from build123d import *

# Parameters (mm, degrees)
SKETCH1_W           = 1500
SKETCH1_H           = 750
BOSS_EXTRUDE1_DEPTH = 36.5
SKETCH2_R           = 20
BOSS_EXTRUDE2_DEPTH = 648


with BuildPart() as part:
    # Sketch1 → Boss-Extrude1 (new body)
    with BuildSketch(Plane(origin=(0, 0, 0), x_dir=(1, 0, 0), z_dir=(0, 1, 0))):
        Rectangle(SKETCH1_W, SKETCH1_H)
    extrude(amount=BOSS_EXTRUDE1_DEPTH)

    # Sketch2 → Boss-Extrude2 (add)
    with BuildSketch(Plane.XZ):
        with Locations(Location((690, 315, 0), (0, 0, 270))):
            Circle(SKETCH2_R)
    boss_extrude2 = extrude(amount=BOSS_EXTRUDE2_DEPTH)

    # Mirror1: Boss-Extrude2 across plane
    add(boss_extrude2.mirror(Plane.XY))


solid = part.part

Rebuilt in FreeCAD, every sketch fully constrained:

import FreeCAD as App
import Part
import Sketcher


def add_polygon(sketch, points):
    """Adds a closed chain of lines whose ends are joined by coincident constraints."""
    first, n = sketch.GeometryCount, len(points)
    for a, b in zip(points, points[1:] + points[:1]):
        sketch.addGeometry(Part.LineSegment(App.Vector(*a, 0), App.Vector(*b, 0)), False)
    for i in range(n):
        sketch.addConstraint(Sketcher.Constraint("Coincident", first + i, 2, first + (i + 1) % n, 1))

doc = App.newDocument("Part")
body = doc.addObject("PartDesign::Body", "Body")

# Sketch on XZ plane
sketch1 = body.newObject("Sketcher::SketchObject", "Sketch")
sketch1.AttachmentSupport = (doc.getObject("XZ_Plane"), [""])
sketch1.MapMode = "FlatFace"
add_polygon(sketch1, [(-750, -375), (-750, 375), (750, 375), (750, -375)])  # lines 0-3
sketch1.addConstraint(Sketcher.Constraint("Vertical", 0))
sketch1.addConstraint(Sketcher.Constraint("Horizontal", 1))
sketch1.addConstraint(Sketcher.Constraint("Vertical", 2))
sketch1.addConstraint(Sketcher.Constraint("Horizontal", 3))
sketch1.addConstraint(Sketcher.Constraint("Symmetric", 0, 2, 2, 2, -1, 1))
sketch1.addConstraint(Sketcher.Constraint("DistanceX", 1, 1, 1, 2, 1500.0))
sketch1.addConstraint(Sketcher.Constraint("DistanceY", 0, 1, 0, 2, 750.0))
pad1 = body.newObject("PartDesign::Pad", "Pad")
pad1.Profile = sketch1
pad1.Length = 36.5
pad1.Reversed = True

# Sketch on XZ plane
sketch2 = body.newObject("Sketcher::SketchObject", "Sketch001")
sketch2.AttachmentSupport = (doc.getObject("XZ_Plane"), [""])
sketch2.MapMode = "FlatFace"
sketch2.addGeometry(Part.Circle(App.Vector(690, 315, 0), App.Vector(0, 0, 1), 20), False)
sketch2.addConstraint(Sketcher.Constraint("Diameter", 0, 40.0))
sketch2.addConstraint(Sketcher.Constraint("DistanceX", -1, 1, 0, 3, 690.0))
sketch2.addConstraint(Sketcher.Constraint("DistanceY", -1, 1, 0, 3, 315.0))
pad2 = body.newObject("PartDesign::Pad", "Pad001")
pad2.Profile = sketch2
pad2.Length = 648
doc.recompute()

mirrored = body.newObject("PartDesign::Mirrored", "Mirrored")
mirrored.Originals = [pad2]
mirrored.MirrorPlane = (doc.getObject("XY_Plane"), [""])
body.Tip = mirrored

doc.recompute()
